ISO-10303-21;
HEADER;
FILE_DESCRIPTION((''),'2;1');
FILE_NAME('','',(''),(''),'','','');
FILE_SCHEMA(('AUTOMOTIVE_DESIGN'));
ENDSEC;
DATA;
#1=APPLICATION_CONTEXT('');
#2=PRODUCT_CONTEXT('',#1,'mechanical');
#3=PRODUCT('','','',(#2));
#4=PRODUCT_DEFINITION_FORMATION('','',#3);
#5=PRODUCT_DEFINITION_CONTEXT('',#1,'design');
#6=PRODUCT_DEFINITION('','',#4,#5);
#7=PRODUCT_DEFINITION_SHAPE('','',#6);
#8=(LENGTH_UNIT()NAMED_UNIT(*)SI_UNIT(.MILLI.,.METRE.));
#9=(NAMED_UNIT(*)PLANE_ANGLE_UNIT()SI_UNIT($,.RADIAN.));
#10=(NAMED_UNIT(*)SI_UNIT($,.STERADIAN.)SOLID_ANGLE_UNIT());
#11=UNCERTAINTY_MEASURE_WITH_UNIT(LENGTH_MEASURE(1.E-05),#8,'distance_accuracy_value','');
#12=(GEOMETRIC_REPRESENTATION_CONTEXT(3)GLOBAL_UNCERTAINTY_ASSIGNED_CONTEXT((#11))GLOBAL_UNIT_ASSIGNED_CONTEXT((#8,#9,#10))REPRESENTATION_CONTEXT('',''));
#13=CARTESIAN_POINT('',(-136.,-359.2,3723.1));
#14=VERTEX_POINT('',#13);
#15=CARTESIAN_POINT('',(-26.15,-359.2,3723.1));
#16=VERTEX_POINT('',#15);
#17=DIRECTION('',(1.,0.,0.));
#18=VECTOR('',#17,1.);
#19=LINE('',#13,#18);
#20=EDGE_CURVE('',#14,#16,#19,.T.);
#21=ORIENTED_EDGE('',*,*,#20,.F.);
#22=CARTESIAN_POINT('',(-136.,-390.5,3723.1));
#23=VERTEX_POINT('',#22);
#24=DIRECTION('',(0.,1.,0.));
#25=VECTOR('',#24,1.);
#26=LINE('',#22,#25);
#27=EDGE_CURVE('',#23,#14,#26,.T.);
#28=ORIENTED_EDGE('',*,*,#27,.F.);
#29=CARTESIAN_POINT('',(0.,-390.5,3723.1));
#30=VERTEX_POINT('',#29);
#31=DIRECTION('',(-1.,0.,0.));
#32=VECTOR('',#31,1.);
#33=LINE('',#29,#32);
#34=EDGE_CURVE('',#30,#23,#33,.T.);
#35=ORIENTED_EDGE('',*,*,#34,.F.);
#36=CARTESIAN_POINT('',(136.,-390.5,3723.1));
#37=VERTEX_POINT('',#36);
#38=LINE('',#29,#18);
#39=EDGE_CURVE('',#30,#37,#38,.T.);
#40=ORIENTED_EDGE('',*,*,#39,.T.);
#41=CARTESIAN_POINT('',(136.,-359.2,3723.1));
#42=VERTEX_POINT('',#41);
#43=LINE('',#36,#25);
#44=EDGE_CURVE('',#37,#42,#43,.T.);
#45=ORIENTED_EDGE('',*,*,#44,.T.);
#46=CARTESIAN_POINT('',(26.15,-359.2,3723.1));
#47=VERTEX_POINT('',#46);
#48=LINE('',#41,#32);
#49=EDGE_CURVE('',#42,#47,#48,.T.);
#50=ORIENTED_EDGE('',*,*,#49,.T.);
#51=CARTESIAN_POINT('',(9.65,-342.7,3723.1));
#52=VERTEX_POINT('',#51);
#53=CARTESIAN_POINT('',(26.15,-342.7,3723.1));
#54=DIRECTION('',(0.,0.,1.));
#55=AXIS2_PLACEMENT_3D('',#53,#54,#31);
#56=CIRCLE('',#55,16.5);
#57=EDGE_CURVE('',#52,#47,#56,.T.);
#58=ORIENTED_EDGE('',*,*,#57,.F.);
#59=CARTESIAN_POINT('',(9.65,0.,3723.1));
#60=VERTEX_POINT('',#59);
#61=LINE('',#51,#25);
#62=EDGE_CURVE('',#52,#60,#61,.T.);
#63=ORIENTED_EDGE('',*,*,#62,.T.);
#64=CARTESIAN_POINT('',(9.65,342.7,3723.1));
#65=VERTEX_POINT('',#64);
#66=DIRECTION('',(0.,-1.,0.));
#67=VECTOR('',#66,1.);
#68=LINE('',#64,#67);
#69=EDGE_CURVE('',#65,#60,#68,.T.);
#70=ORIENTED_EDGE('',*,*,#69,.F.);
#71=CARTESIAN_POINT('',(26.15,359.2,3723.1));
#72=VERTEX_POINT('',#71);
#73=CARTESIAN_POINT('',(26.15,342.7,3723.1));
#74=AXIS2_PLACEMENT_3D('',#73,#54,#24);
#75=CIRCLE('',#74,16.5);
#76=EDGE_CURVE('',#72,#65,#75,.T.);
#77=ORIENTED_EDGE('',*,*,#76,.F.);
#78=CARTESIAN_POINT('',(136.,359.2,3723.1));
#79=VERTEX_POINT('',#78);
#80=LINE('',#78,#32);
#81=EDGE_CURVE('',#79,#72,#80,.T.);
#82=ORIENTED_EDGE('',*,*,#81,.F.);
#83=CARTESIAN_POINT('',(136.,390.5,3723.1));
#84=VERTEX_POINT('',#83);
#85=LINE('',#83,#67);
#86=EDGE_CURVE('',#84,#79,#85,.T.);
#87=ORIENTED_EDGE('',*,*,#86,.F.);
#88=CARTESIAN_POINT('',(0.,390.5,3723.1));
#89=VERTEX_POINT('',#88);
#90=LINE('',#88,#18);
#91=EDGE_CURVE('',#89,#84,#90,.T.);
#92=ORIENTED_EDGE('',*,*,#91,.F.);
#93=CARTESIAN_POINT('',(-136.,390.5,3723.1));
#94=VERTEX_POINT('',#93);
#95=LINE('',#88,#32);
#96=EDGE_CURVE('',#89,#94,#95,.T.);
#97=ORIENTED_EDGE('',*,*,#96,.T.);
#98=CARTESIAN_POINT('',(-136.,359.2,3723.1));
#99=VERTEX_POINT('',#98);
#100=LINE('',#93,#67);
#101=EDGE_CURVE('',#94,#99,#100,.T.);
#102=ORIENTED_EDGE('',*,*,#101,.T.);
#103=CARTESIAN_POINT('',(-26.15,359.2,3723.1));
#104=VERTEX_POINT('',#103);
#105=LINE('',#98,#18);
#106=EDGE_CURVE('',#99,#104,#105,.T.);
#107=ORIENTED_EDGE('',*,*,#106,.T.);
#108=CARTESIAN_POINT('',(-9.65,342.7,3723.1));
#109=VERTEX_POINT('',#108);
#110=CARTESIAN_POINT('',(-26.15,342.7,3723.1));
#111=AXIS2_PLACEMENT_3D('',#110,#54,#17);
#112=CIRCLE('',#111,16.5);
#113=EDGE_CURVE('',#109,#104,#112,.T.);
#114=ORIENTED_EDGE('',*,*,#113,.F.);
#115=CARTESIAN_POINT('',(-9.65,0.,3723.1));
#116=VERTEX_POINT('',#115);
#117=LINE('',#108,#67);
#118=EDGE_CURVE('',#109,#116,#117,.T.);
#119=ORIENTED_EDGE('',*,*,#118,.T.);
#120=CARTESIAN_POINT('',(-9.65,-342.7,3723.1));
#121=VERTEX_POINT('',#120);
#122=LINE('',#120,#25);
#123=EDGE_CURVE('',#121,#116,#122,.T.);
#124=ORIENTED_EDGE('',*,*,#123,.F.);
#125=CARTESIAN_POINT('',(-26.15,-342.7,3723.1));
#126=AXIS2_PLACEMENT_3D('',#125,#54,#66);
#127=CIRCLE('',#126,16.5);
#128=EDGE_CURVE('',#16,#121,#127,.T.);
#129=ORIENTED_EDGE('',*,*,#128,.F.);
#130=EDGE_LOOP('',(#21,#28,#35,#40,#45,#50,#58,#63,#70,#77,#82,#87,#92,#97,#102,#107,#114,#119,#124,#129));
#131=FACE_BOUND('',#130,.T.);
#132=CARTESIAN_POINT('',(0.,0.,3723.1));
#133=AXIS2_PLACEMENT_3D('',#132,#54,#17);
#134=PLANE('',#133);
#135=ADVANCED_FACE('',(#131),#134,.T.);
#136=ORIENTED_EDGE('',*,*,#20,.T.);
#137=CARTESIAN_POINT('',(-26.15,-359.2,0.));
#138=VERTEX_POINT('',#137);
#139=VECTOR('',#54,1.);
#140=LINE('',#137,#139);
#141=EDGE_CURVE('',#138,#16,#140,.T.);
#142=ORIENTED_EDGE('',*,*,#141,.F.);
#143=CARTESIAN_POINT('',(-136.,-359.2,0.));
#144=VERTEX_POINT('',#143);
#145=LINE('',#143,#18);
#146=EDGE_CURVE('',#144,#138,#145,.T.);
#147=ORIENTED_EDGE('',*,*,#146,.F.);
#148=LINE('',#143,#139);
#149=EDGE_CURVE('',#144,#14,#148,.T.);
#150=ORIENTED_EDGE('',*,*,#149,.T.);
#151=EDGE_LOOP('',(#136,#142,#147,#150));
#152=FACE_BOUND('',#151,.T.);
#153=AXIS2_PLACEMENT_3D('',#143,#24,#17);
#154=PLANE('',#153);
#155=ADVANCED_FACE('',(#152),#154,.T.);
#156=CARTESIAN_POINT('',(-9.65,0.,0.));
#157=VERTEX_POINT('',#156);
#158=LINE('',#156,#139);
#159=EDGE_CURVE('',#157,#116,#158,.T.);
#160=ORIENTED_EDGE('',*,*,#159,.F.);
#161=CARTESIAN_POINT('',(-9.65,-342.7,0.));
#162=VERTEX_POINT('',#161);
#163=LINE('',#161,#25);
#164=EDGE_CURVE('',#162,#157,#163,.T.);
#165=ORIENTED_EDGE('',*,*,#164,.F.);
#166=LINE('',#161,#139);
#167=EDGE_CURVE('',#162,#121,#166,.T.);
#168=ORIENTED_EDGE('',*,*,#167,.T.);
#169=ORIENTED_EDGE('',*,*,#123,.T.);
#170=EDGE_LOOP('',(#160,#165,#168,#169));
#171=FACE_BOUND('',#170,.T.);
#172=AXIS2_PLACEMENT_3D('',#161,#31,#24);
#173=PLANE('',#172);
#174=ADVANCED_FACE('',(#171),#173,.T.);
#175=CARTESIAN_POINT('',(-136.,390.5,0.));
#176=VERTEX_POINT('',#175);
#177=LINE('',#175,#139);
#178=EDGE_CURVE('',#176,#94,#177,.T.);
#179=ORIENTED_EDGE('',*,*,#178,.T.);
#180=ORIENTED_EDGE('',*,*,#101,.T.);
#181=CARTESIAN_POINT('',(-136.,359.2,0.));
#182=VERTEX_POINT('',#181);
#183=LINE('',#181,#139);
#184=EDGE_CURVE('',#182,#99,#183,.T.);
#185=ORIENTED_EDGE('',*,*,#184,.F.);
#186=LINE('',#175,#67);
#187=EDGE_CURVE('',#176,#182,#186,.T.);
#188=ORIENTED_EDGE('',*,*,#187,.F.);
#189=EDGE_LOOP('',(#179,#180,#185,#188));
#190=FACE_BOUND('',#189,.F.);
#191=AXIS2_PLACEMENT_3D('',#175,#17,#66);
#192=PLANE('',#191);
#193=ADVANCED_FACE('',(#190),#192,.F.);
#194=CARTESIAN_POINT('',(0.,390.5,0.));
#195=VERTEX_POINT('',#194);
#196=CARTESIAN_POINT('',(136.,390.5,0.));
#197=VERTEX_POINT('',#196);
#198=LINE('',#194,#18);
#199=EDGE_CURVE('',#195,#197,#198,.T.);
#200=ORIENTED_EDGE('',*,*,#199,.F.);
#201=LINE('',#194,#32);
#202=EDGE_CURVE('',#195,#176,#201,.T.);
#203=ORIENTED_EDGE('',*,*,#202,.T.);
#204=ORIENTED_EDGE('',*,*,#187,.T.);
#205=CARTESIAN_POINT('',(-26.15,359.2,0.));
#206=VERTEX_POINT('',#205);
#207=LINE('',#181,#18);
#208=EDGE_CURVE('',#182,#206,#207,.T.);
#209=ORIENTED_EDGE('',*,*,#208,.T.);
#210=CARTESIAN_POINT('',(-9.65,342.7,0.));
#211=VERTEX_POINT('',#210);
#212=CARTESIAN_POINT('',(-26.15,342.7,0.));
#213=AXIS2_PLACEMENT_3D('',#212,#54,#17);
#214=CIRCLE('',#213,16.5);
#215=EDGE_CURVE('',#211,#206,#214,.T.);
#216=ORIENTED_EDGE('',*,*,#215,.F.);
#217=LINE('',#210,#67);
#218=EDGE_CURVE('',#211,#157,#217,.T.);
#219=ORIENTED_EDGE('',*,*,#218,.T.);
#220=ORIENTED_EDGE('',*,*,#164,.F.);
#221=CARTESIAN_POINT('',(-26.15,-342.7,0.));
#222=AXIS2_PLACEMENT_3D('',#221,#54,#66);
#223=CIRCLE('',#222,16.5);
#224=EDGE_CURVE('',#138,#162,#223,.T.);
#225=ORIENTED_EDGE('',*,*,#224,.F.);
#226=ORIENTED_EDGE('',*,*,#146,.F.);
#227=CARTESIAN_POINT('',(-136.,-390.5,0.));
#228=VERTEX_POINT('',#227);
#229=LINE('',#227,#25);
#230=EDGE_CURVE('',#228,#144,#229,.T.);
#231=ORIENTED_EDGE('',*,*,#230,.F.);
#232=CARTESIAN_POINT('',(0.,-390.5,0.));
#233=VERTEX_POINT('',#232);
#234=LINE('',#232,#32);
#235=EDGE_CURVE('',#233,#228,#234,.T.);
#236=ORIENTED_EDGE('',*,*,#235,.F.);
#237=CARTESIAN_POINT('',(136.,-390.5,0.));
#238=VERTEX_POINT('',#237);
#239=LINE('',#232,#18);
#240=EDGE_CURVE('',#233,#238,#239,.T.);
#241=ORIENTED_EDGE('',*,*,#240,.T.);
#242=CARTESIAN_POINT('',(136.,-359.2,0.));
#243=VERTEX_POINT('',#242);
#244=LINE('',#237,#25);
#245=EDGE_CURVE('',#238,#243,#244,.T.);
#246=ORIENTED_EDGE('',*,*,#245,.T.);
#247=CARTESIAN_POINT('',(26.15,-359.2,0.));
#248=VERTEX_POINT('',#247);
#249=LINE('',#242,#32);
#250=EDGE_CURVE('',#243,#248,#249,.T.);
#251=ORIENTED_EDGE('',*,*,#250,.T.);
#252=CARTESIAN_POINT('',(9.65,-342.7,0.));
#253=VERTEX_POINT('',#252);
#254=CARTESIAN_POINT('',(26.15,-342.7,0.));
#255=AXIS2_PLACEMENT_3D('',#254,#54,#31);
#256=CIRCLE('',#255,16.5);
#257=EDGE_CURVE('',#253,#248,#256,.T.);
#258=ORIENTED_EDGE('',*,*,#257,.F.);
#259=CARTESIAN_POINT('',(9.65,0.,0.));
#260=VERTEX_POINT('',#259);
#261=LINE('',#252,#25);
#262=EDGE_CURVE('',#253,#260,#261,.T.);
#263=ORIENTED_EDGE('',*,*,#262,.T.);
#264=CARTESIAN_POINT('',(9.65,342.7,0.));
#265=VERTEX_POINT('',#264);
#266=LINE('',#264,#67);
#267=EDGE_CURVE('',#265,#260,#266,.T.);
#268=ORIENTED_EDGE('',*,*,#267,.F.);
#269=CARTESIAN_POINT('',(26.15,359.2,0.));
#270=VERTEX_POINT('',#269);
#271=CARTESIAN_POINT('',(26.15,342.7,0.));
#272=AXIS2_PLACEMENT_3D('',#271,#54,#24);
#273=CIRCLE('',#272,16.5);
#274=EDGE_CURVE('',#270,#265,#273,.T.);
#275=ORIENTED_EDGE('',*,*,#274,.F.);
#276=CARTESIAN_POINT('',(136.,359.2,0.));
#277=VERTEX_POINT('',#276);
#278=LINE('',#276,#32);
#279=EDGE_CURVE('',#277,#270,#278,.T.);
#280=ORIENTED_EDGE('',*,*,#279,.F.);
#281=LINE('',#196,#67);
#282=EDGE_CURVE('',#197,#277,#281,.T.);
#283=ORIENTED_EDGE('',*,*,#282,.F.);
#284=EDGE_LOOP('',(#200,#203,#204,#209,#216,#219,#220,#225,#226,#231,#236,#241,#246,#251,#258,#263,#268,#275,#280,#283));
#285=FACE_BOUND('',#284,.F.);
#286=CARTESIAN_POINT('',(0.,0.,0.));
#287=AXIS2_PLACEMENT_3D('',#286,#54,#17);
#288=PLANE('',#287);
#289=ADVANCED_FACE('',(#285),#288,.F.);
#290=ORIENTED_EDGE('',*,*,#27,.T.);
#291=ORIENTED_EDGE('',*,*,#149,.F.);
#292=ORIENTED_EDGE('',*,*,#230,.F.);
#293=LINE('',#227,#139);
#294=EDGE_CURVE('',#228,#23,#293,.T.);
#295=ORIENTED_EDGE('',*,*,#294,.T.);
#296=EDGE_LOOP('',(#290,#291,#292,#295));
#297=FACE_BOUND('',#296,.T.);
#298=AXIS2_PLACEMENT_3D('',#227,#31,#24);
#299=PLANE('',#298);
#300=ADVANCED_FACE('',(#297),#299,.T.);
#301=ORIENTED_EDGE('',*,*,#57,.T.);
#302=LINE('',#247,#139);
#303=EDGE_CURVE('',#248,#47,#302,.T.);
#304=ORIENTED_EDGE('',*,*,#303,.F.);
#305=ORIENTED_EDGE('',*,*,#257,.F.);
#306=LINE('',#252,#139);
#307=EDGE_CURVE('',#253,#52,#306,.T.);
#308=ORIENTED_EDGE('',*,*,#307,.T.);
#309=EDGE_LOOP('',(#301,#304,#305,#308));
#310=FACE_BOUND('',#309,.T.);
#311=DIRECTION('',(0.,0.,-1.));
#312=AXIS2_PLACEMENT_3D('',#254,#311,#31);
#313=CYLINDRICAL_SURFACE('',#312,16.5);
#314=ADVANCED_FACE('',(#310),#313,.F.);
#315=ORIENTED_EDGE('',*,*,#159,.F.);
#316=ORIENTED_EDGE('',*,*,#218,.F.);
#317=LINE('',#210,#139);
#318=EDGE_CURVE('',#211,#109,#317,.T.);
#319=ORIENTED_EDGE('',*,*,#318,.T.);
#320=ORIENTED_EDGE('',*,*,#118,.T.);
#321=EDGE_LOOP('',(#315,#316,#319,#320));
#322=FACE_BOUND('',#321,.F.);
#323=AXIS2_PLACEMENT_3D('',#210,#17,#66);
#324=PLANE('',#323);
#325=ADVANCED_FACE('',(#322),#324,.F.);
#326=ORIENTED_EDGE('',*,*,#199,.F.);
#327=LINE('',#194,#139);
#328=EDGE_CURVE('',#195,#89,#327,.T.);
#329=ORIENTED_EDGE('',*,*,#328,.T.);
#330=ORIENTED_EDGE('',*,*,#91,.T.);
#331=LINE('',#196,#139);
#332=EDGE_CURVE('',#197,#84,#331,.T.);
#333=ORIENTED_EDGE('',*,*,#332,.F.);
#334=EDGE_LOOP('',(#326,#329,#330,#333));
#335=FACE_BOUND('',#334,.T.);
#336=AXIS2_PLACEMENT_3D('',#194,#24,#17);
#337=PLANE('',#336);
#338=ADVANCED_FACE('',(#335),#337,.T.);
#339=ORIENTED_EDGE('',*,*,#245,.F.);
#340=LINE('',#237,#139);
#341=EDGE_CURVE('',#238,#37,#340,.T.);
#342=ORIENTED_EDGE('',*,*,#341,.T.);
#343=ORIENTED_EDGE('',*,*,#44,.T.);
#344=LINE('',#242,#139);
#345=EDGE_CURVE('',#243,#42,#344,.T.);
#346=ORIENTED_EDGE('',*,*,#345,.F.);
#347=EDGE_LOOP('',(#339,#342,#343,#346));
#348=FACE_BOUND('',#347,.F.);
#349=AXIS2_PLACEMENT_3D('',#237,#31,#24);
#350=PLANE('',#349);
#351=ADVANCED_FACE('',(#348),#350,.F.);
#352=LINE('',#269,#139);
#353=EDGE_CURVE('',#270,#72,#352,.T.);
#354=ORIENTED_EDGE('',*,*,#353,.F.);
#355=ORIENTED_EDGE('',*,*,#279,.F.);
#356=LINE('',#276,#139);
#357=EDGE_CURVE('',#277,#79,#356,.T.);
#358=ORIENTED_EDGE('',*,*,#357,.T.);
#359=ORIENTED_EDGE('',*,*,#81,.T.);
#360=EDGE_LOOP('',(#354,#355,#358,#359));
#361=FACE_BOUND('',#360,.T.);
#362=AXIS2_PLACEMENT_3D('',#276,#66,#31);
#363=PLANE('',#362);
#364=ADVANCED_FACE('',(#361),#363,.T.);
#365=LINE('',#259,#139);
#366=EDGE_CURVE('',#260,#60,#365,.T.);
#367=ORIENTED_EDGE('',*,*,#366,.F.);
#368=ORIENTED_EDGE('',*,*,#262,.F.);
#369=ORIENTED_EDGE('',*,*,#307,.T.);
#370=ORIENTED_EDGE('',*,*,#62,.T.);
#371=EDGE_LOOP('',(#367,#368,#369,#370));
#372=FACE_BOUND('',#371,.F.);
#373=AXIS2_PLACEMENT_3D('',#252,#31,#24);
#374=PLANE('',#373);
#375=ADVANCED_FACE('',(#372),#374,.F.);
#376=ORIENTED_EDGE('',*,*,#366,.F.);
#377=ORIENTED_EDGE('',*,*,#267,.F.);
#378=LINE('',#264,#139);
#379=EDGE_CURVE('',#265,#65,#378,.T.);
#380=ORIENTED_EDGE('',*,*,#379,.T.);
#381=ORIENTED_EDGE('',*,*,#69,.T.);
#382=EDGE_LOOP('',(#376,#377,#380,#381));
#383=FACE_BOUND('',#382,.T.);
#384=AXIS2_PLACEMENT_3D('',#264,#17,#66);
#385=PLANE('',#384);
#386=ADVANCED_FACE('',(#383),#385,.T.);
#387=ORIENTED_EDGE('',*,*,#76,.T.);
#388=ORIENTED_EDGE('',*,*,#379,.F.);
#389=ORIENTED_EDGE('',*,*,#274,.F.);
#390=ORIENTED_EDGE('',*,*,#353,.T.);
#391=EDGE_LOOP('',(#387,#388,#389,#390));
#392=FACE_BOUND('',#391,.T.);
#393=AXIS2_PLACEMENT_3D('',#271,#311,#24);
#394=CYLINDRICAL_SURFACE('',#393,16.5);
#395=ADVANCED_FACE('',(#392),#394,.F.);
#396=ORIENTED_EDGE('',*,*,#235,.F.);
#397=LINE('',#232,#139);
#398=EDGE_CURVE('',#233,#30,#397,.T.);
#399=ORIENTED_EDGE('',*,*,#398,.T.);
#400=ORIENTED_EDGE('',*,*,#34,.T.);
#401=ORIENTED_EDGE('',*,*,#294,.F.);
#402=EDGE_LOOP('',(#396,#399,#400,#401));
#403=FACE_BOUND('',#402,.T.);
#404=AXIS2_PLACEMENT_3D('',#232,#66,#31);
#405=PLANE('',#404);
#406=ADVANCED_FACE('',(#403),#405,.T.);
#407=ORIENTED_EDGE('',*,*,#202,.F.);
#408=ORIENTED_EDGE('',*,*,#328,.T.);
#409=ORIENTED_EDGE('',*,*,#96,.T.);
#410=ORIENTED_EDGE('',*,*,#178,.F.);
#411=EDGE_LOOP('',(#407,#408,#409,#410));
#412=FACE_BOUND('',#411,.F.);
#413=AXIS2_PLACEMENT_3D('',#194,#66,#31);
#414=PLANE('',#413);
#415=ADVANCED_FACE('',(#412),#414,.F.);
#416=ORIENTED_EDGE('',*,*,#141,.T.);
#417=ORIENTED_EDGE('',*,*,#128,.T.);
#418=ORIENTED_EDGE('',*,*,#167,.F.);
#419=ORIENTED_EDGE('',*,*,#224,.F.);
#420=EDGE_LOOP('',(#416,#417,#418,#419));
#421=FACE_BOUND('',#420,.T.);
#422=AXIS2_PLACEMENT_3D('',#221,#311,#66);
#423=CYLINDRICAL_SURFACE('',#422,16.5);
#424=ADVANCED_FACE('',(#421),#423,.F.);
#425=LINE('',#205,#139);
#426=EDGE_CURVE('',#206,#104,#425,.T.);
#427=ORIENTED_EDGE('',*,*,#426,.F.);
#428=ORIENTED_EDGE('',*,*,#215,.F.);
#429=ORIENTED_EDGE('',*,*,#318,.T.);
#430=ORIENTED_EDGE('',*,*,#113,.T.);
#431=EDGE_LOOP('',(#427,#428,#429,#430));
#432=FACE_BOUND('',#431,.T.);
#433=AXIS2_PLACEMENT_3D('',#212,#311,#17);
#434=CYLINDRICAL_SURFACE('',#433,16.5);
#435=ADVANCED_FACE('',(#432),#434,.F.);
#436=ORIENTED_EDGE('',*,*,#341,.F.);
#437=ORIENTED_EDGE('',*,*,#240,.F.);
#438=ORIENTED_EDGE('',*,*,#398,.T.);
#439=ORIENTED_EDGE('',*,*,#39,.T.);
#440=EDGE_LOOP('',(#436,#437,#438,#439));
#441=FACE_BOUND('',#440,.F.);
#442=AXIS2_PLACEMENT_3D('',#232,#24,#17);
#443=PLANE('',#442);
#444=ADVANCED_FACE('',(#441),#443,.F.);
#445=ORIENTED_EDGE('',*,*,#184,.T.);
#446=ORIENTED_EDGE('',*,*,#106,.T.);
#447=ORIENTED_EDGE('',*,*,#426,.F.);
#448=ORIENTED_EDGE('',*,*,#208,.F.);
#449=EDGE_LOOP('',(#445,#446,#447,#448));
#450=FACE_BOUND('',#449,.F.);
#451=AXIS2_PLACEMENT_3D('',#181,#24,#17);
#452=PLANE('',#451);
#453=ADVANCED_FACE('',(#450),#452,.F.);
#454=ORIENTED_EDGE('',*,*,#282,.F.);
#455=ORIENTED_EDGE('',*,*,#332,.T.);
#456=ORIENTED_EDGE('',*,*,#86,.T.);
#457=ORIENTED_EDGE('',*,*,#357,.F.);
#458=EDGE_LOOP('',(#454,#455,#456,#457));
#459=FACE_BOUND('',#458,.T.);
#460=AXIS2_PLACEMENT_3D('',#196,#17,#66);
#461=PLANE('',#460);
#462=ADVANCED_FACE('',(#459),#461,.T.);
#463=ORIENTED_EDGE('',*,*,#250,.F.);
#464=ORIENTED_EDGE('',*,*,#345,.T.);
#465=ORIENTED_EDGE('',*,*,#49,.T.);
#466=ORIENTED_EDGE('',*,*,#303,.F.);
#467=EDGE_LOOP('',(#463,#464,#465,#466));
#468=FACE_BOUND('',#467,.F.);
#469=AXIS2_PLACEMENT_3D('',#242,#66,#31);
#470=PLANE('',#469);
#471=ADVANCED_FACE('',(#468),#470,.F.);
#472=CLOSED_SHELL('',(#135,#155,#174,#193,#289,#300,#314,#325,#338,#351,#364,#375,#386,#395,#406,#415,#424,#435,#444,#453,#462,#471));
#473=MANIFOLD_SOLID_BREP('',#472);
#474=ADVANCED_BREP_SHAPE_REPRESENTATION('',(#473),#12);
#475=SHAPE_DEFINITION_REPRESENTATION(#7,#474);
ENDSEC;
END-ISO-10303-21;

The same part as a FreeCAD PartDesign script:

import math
import FreeCAD as App
import Part
import Sketcher
Q = App.Units.Quantity

doc = App.newDocument("Part")
body = doc.addObject("PartDesign::Body", "Body")

# Sketch on XY plane
sketch1 = doc.addObject("Sketcher::SketchObject", "Sketch")
body.addObject(sketch1)
sketch1.AttachmentSupport = (doc.XY_Plane, [""])
sketch1.MapMode = "FlatFace"
sketch1.addGeometry([
    Part.LineSegment(App.Vector(-136, -359.2, 0), App.Vector(-136, -390.5, 0)),  # 0
    Part.LineSegment(App.Vector(-136, -390.5, 0), App.Vector(136, -390.5, 0)),  # 1
    Part.LineSegment(App.Vector(136, -390.5, 0), App.Vector(136, -359.2, 0)),  # 2
    Part.LineSegment(App.Vector(136, -359.2, 0), App.Vector(26.15, -359.2, 0)),  # 3
    Part.ArcOfCircle(Part.Circle(App.Vector(26.15, -342.7, 0), App.Vector(0, 0, 1), 16.5), math.radians(180), math.radians(270)),  # 4
    Part.LineSegment(App.Vector(9.65, -342.7, 0), App.Vector(9.65, 342.7, 0)),  # 5
    Part.ArcOfCircle(Part.Circle(App.Vector(26.15, 342.7, 0), App.Vector(0, 0, 1), 16.5), math.radians(90), math.radians(180)),  # 6
    Part.LineSegment(App.Vector(26.15, 359.2, 0), App.Vector(136, 359.2, 0)),  # 7
    Part.LineSegment(App.Vector(136, 359.2, 0), App.Vector(136, 390.5, 0)),  # 8
    Part.LineSegment(App.Vector(136, 390.5, 0), App.Vector(-136, 390.5, 0)),  # 9
    Part.LineSegment(App.Vector(-136, 390.5, 0), App.Vector(-136, 359.2, 0)),  # 10
    Part.LineSegment(App.Vector(-136, 359.2, 0), App.Vector(-26.15, 359.2, 0)),  # 11
    Part.ArcOfCircle(Part.Circle(App.Vector(-26.15, 342.7, 0), App.Vector(0, 0, 1), 16.5), math.radians(0), math.radians(90)),  # 12
    Part.LineSegment(App.Vector(-9.65, 342.7, 0), App.Vector(-9.65, -342.7, 0)),  # 13
    Part.ArcOfCircle(Part.Circle(App.Vector(-26.15, -342.7, 0), App.Vector(0, 0, 1), 16.5), math.radians(-90), math.radians(0)),  # 14
    Part.LineSegment(App.Vector(-26.15, -359.2, 0), App.Vector(-136, -359.2, 0)),  # 15
], False)
sketch1.addConstraint([
    Sketcher.Constraint("Coincident", 0, 2, 1, 1),
    Sketcher.Constraint("Coincident", 1, 2, 2, 1),
    Sketcher.Constraint("Coincident", 2, 2, 3, 1),
    Sketcher.Constraint("Tangent", 3, 2, 4, 2),
    Sketcher.Constraint("Tangent", 4, 1, 5, 1),
    Sketcher.Constraint("Tangent", 5, 2, 6, 2),
    Sketcher.Constraint("Tangent", 6, 1, 7, 1),
    Sketcher.Constraint("Coincident", 7, 2, 8, 1),
    Sketcher.Constraint("Coincident", 8, 2, 9, 1),
    Sketcher.Constraint("Coincident", 9, 2, 10, 1),
    Sketcher.Constraint("Coincident", 10, 2, 11, 1),
    Sketcher.Constraint("Tangent", 11, 2, 12, 2),
    Sketcher.Constraint("Tangent", 12, 1, 13, 1),
    Sketcher.Constraint("Tangent", 13, 2, 14, 2),
    Sketcher.Constraint("Tangent", 14, 1, 15, 1),
    Sketcher.Constraint("Coincident", 15, 2, 0, 1),
    Sketcher.Constraint("Vertical", 0),
    Sketcher.Constraint("Horizontal", 1),
    Sketcher.Constraint("Vertical", 2),
    Sketcher.Constraint("Horizontal", 3),
    Sketcher.Constraint("Vertical", 5),
    Sketcher.Constraint("Horizontal", 7),
    Sketcher.Constraint("Vertical", 8),
    Sketcher.Constraint("Horizontal", 9),
    Sketcher.Constraint("Vertical", 10),
    Sketcher.Constraint("Horizontal", 11),
    Sketcher.Constraint("Vertical", 13),
    Sketcher.Constraint("Horizontal", 15),
    Sketcher.Constraint("Equal", 4, 6),
    Sketcher.Constraint("Equal", 6, 12),
    Sketcher.Constraint("Equal", 12, 14),
    Sketcher.Constraint("Symmetric", 4, 3, 12, 3, -1, 1),
    Sketcher.Constraint("Symmetric", 0, 2, 8, 2, -1, 1),
    Sketcher.Constraint("Symmetric", 7, 2, 10, 2, -2),
    Sketcher.Constraint("Symmetric", 2, 2, 15, 2, -2),
    Sketcher.Constraint("Radius", 4, Q("16.5 mm")),
    Sketcher.Constraint("DistanceY", 0, 2, 0, 1, Q("31.3 mm")),
    Sketcher.Constraint("DistanceX", 0, 2, -1, 1, Q("136 mm")),
    Sketcher.Constraint("DistanceY", 0, 2, -1, 1, Q("390.5 mm")),
    Sketcher.Constraint("DistanceX", -1, 1, 4, 1, Q("9.65 mm")),
])
pad1 = doc.addObject("PartDesign::Pad", "Pad")
body.addObject(pad1)
pad1.Profile = sketch1
pad1.Length = 3723.1

doc.recompute()
